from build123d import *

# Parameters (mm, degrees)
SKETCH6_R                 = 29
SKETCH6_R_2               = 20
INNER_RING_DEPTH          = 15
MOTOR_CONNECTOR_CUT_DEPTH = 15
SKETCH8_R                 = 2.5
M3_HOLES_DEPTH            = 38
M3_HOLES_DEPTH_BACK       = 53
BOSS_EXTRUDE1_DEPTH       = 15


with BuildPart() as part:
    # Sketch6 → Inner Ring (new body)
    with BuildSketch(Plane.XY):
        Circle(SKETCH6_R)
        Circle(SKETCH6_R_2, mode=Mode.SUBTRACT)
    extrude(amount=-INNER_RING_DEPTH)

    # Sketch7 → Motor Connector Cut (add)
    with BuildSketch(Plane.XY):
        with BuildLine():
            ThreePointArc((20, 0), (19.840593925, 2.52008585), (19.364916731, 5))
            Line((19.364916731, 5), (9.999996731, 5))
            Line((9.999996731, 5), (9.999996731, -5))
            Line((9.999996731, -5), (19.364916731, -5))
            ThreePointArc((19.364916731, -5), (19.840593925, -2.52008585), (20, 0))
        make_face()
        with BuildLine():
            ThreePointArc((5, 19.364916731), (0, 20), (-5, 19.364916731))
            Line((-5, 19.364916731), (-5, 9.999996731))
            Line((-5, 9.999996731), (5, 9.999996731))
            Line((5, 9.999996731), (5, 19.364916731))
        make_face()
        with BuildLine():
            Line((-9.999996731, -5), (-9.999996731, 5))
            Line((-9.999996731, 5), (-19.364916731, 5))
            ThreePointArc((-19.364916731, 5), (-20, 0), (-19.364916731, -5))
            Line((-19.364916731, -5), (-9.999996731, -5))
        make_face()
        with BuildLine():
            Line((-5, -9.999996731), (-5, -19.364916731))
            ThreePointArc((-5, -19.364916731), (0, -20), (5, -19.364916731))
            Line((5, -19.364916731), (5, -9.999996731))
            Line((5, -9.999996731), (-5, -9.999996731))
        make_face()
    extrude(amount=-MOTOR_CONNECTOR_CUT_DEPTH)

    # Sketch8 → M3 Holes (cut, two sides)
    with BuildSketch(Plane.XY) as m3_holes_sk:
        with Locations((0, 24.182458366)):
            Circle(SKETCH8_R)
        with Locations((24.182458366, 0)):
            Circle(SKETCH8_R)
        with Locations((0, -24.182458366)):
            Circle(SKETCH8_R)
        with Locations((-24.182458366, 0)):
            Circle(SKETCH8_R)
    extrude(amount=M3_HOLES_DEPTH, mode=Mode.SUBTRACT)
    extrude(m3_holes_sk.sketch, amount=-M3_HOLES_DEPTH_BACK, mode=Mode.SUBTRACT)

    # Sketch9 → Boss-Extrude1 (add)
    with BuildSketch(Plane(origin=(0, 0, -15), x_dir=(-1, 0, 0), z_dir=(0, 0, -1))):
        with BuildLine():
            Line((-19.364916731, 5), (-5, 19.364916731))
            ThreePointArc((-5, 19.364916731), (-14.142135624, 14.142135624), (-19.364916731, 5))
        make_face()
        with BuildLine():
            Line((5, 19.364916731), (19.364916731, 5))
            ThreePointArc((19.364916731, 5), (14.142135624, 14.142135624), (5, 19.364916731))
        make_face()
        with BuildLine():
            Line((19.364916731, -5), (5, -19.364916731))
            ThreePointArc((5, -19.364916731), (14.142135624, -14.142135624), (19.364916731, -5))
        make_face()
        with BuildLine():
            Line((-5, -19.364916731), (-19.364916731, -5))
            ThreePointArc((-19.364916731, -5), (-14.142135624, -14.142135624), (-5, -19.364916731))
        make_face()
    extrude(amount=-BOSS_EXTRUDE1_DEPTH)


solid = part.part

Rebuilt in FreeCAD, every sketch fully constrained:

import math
import FreeCAD as App
import Part
import Sketcher

V = App.Vector

doc = App.newDocument("Part")
params = doc.addObject("Spreadsheet::Sheet", "Params")
for row, (alias, value) in enumerate([
    ("sketch1_diameter", "58 mm"),
    ("sketch1_diameter2", "40 mm"),
    ("pad1_length", "15 mm"),
    ("sketch2_radius", "20 mm"),
    ("sketch2_width", "10 mm"),
    ("pad2_length", "15 mm"),
    ("sketch3_diameter", "5 mm"),
    ("sketch4_radius", "20 mm"),
    ("pad3_length", "15 mm"),
], start=1):
    params.set(f"A{row}", alias)
    params.set(f"B{row}", "=" + value)
    params.setAlias(f"B{row}", alias)

body = doc.addObject("PartDesign::Body", "Body")

# Sketch on XY plane
sketch1 = body.newObject("Sketcher::SketchObject", "Sketch")
sketch1.AttachmentSupport = (doc.getObject("XY_Plane"), [""])
sketch1.MapMode = "FlatFace"
sketch1.addGeometry(Part.Circle(V(0, 0, 0), V(0, 0, 1), 29), False)
sketch1.addGeometry(Part.Circle(V(0, 0, 0), V(0, 0, 1), 20), False)
sketch1.addConstraint(Sketcher.Constraint("Coincident", 0, 3, -1, 1))
sketch1.addConstraint(Sketcher.Constraint("Coincident", 1, 3, -1, 1))
sketch1.addConstraint(Sketcher.Constraint("Diameter", 0, 58.0))
sketch1.addConstraint(Sketcher.Constraint("Diameter", 1, 40.0))
sketch1.setExpression("Constraints[2]", "Params.sketch1_diameter")
sketch1.setExpression("Constraints[3]", "Params.sketch1_diameter2")
pad1 = body.newObject("PartDesign::Pad", "Pad")
pad1.Profile = sketch1
pad1.setExpression("Length", "Params.pad1_length")
pad1.Reversed = True

# Sketch on XY plane
sketch2 = body.newObject("Sketcher::SketchObject", "Sketch001")
sketch2.AttachmentSupport = (doc.getObject("XY_Plane"), [""])
sketch2.MapMode = "FlatFace"
sketch2.addGeometry(Part.ArcOfCircle(Part.Circle(V(0, 0, 0), V(0, 0, 1), 20), math.radians(0), math.radians(14.48)), False)
sketch2.addGeometry(Part.LineSegment(V(19, 5, 0), V(10, 5, 0)), False)
sketch2.addGeometry(Part.LineSegment(V(10, 5, 0), V(10, -5, 0)), False)
sketch2.addGeometry(Part.LineSegment(V(10, -5, 0), V(19, -5, 0)), False)
sketch2.addGeometry(Part.ArcOfCircle(Part.Circle(V(0, 0, 0), V(0, 0, 1), 20), math.radians(-14.48), math.radians(0)), False)
sketch2.addGeometry(Part.ArcOfCircle(Part.Circle(V(0, 0, 0), V(0, 0, 1), 20), math.radians(76), math.radians(104)), False)
sketch2.addGeometry(Part.LineSegment(V(-5, 19, 0), V(-5, 10, 0)), False)
sketch2.addGeometry(Part.LineSegment(V(-5, 10, 0), V(5, 10, 0)), False)
sketch2.addGeometry(Part.LineSegment(V(5, 10, 0), V(5, 19, 0)), False)
sketch2.addGeometry(Part.LineSegment(V(-10, -5, 0), V(-10, 5, 0)), False)
sketch2.addGeometry(Part.LineSegment(V(-10, 5, 0), V(-19, 5, 0)), False)
sketch2.addGeometry(Part.ArcOfCircle(Part.Circle(V(0, 0, 0), V(0, 0, 1), 20), math.radians(166), math.radians(194)), False)
sketch2.addGeometry(Part.LineSegment(V(-19, -5, 0), V(-10, -5, 0)), False)
sketch2.addGeometry(Part.LineSegment(V(-5, -10, 0), V(-5, -19, 0)), False)
sketch2.addGeometry(Part.ArcOfCircle(Part.Circle(V(0, 0, 0), V(0, 0, 1), 20), math.radians(-104), math.radians(-76)), False)
sketch2.addGeometry(Part.LineSegment(V(5, -19, 0), V(5, -10, 0)), False)
sketch2.addGeometry(Part.LineSegment(V(5, -10, 0), V(-5, -10, 0)), False)
sketch2.addConstraint(Sketcher.Constraint("Coincident", 0, 2, 1, 1))
sketch2.addConstraint(Sketcher.Constraint("Coincident", 1, 2, 2, 1))
sketch2.addConstraint(Sketcher.Constraint("Coincident", 2, 2, 3, 1))
sketch2.addConstraint(Sketcher.Constraint("Coincident", 3, 2, 4, 1))
sketch2.addConstraint(Sketcher.Constraint("Tangent", 4, 2, 0, 1))
sketch2.addConstraint(Sketcher.Constraint("Coincident", 5, 2, 6, 1))
sketch2.addConstraint(Sketcher.Constraint("Coincident", 6, 2, 7, 1))
sketch2.addConstraint(Sketcher.Constraint("Coincident", 7, 2, 8, 1))
sketch2.addConstraint(Sketcher.Constraint("Coincident", 8, 2, 5, 1))
sketch2.addConstraint(Sketcher.Constraint("Coincident", 9, 2, 10, 1))
sketch2.addConstraint(Sketcher.Constraint("Coincident", 10, 2, 11, 1))
sketch2.addConstraint(Sketcher.Constraint("Coincident", 11, 2, 12, 1))
sketch2.addConstraint(Sketcher.Constraint("Coincident", 12, 2, 9, 1))
sketch2.addConstraint(Sketcher.Constraint("Coincident", 13, 2, 14, 1))
sketch2.addConstraint(Sketcher.Constraint("Coincident", 14, 2, 15, 1))
sketch2.addConstraint(Sketcher.Constraint("Coincident", 15, 2, 16, 1))
sketch2.addConstraint(Sketcher.Constraint("Coincident", 16, 2, 13, 1))
sketch2.addConstraint(Sketcher.Constraint("Horizontal", 1))
sketch2.addConstraint(Sketcher.Constraint("Vertical", 2))
sketch2.addConstraint(Sketcher.Constraint("Horizontal", 3))
sketch2.addConstraint(Sketcher.Constraint("Vertical", 6))
sketch2.addConstraint(Sketcher.Constraint("Horizontal", 7))
sketch2.addConstraint(Sketcher.Constraint("Vertical", 8))
sketch2.addConstraint(Sketcher.Constraint("Vertical", 9))
sketch2.addConstraint(Sketcher.Constraint("Horizontal", 10))
sketch2.addConstraint(Sketcher.Constraint("Horizontal", 12))
sketch2.addConstraint(Sketcher.Constraint("Vertical", 13))
sketch2.addConstraint(Sketcher.Constraint("Vertical", 15))
sketch2.addConstraint(Sketcher.Constraint("Horizontal", 16))
sketch2.addConstraint(Sketcher.Constraint("Coincident", 0, 3, -1, 1))
sketch2.addConstraint(Sketcher.Constraint("Coincident", 5, 3, -1, 1))
sketch2.addConstraint(Sketcher.Constraint("Coincident", 11, 3, -1, 1))
sketch2.addConstraint(Sketcher.Constraint("Coincident", 14, 3, -1, 1))
sketch2.addConstraint(Sketcher.Constraint("Equal", 0, 4))
sketch2.addConstraint(Sketcher.Constraint("Equal", 4, 5))
sketch2.addConstraint(Sketcher.Constraint("Equal", 5, 11))
sketch2.addConstraint(Sketcher.Constraint("Equal", 11, 14))
sketch2.addConstraint(Sketcher.Constraint("Symmetric", 2, 2, 9, 2, -1, 1))
sketch2.addConstraint(Sketcher.Constraint("Symmetric", 6, 2, 15, 2, -1, 1))
sketch2.addConstraint(Sketcher.Constraint("PointOnObject", 4, 2, -1))
sketch2.addConstraint(Sketcher.Constraint("Horizontal", 5, 2, 8, 2))
sketch2.addConstraint(Sketcher.Constraint("Horizontal", 1, 2, 9, 2))
sketch2.addConstraint(Sketcher.Constraint("Horizontal", 3, 2, 11, 2))
sketch2.addConstraint(Sketcher.Constraint("Horizontal", 13, 2, 14, 2))
sketch2.addConstraint(Sketcher.Constraint("Equal", 16, 2))
sketch2.addConstraint(Sketcher.Constraint("Equal", 12, 6))
sketch2.addConstraint(Sketcher.Constraint("Radius", 0, 20.0))
sketch2.addConstraint(Sketcher.Constraint("DistanceX", 7, 1, 7, 2, 10.0))
sketch2.addConstraint(Sketcher.Constraint("DistanceX", 1, 2, 1, 1, 9.36492))
sketch2.setExpression("Constraints[46]", "Params.sketch2_radius")
sketch2.setExpression("Constraints[47]", "Params.sketch2_width")
pad2 = body.newObject("PartDesign::Pad", "Pad001")
pad2.Profile = sketch2
pad2.setExpression("Length", "Params.pad2_length")
pad2.Reversed = True

# Sketch on XY plane
sketch3 = body.newObject("Sketcher::SketchObject", "Sketch002")
sketch3.AttachmentSupport = (doc.getObject("XY_Plane"), [""])
sketch3.MapMode = "FlatFace"
sketch3.addGeometry(Part.Circle(V(0, 24.2, 0), V(0, 0, 1), 2.5), False)
sketch3.addGeometry(Part.Circle(V(24.2, 0, 0), V(0, 0, 1), 2.5), False)
sketch3.addGeometry(Part.Circle(V(0, -24.2, 0), V(0, 0, 1), 2.5), False)
sketch3.addGeometry(Part.Circle(V(-24.2, 0, 0), V(0, 0, 1), 2.5), False)
sketch3.addConstraint(Sketcher.Constraint("Equal", 0, 1))
sketch3.addConstraint(Sketcher.Constraint("Equal", 1, 2))
sketch3.addConstraint(Sketcher.Constraint("Equal", 2, 3))
sketch3.addConstraint(Sketcher.Constraint("Symmetric", 0, 3, 2, 3, -1, 1))
sketch3.addConstraint(Sketcher.Constraint("Symmetric", 1, 3, 3, 3, -1, 1))
sketch3.addConstraint(Sketcher.Constraint("PointOnObject", 0, 3, -2))
sketch3.addConstraint(Sketcher.Constraint("PointOnObject", 1, 3, -1))
sketch3.addConstraint(Sketcher.Constraint("Diameter", 0, 5.0))
sketch3.addConstraint(Sketcher.Constraint("DistanceY", -1, 1, 0, 3, 24.182458))
sketch3.addConstraint(Sketcher.Constraint("DistanceX", -1, 1, 1, 3, 24.182458))
sketch3.setExpression("Constraints[7]", "Params.sketch3_diameter")
pocket1 = body.newObject("PartDesign::Pocket", "Pocket")
pocket1.Profile = sketch3
pocket1.Type = "ThroughAll"
pocket1.Midplane = True

# Sketch on XY plane
sketch4 = body.newObject("Sketcher::SketchObject", "Sketch003")
sketch4.AttachmentSupport = (doc.getObject("XY_Plane"), [""])
sketch4.MapMode = "FlatFace"
sketch4.AttachmentOffset = App.Placement(V(0, 0, -15), App.Rotation())
sketch4.addGeometry(Part.LineSegment(V(19, 5, 0), V(5, 19, 0)), False)
sketch4.addGeometry(Part.ArcOfCircle(Part.Circle(V(0, 0, 0), V(0, 0, 1), 20), math.radians(14), math.radians(76)), False)
sketch4.addGeometry(Part.LineSegment(V(-5, 19, 0), V(-19, 5, 0)), False)
sketch4.addGeometry(Part.ArcOfCircle(Part.Circle(V(0, 0, 0), V(0, 0, 1), 20), math.radians(104), math.radians(166)), False)
sketch4.addGeometry(Part.LineSegment(V(-19, -5, 0), V(-5, -19, 0)), False)
sketch4.addGeometry(Part.ArcOfCircle(Part.Circle(V(0, 0, 0), V(0, 0, 1), 20), math.radians(-166), math.radians(-104)), False)
sketch4.addGeometry(Part.LineSegment(V(5, -19, 0), V(19, -5, 0)), False)
sketch4.addGeometry(Part.ArcOfCircle(Part.Circle(V(0, 0, 0), V(0, 0, 1), 20), math.radians(-76), math.radians(-14)), False)
sketch4.addConstraint(Sketcher.Constraint("Coincident", 0, 1, 1, 1))
sketch4.addConstraint(Sketcher.Constraint("Coincident", 1, 2, 0, 2))
sketch4.addConstraint(Sketcher.Constraint("Coincident", 2, 1, 3, 1))
sketch4.addConstraint(Sketcher.Constraint("Coincident", 3, 2, 2, 2))
sketch4.addConstraint(Sketcher.Constraint("Coincident", 4, 1, 5, 1))
sketch4.addConstraint(Sketcher.Constraint("Coincident", 5, 2, 4, 2))
sketch4.addConstraint(Sketcher.Constraint("Coincident", 6, 1, 7, 1))
sketch4.addConstraint(Sketcher.Constraint("Coincident", 7, 2, 6, 2))
sketch4.addConstraint(Sketcher.Constraint("Coincident", 1, 3, -1, 1))
sketch4.addConstraint(Sketcher.Constraint("Coincident", 3, 3, -1, 1))
sketch4.addConstraint(Sketcher.Constraint("Coincident", 5, 3, -1, 1))
sketch4.addConstraint(Sketcher.Constraint("Coincident", 7, 3, -1, 1))
sketch4.addConstraint(Sketcher.Constraint("Equal", 1, 3))
sketch4.addConstraint(Sketcher.Constraint("Equal", 3, 5))
sketch4.addConstraint(Sketcher.Constraint("Equal", 5, 7))
sketch4.addConstraint(Sketcher.Constraint("Perpendicular", 0, 2))
sketch4.addConstraint(Sketcher.Constraint("Perpendicular", 2, 4))
sketch4.addConstraint(Sketcher.Constraint("Perpendicular", 4, 6))
sketch4.addConstraint(Sketcher.Constraint("Horizontal", 1, 2, 2, 1))
sketch4.addConstraint(Sketcher.Constraint("Horizontal", 0, 1, 3, 2))
sketch4.addConstraint(Sketcher.Constraint("Horizontal", 5, 2, 6, 1))
sketch4.addConstraint(Sketcher.Constraint("Vertical", 3, 2, 4, 1))
sketch4.addConstraint(Sketcher.Constraint("Radius", 1, 20.0))
sketch4.addConstraint(Sketcher.Constraint("DistanceY", -1, 1, 0, 1, 5.0))
sketch4.setExpression("Constraints[22]", "Params.sketch4_radius")
pad3 = body.newObject("PartDesign::Pad", "Pad002")
pad3.Profile = sketch4
pad3.setExpression("Length", "Params.pad3_length")

doc.recompute()
